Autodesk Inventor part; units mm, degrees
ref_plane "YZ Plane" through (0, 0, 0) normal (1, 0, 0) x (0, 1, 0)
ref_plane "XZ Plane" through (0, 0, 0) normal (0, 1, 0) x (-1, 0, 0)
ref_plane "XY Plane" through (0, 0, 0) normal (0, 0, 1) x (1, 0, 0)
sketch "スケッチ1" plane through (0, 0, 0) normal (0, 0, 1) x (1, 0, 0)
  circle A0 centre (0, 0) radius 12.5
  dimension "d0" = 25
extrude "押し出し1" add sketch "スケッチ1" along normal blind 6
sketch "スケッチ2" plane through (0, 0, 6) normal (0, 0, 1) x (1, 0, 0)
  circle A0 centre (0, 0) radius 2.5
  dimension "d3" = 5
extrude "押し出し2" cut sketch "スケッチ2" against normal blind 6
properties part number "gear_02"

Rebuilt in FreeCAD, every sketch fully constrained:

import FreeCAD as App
import Part
import Sketcher
from FreeCAD import Vector

doc = App.newDocument("Part")
body = doc.addObject("PartDesign::Body", "Body")

# Sketch on XY plane
sketch1 = body.newObject("Sketcher::SketchObject", "Sketch")
sketch1.AttachmentSupport = (doc.getObject("XY_Plane"), [""])
sketch1.MapMode = "FlatFace"
sketch1.addGeometry(Part.Circle(Vector(0, 0, 0), Vector(0, 0, 1), 12), False)
sketch1.addConstraint([
    Sketcher.Constraint("Coincident", 0, 3, -1, 1),
    Sketcher.Constraint("Diameter", 0, 25.0),
])
pad1 = body.newObject("PartDesign::Pad", "Pad")
pad1.Profile = sketch1
pad1.Length = 6

# Sketch on XY plane
sketch2 = body.newObject("Sketcher::SketchObject", "Sketch001")
sketch2.AttachmentSupport = (doc.getObject("XY_Plane"), [""])
sketch2.MapMode = "FlatFace"
sketch2.AttachmentOffset = App.Placement(Vector(0, 0, 6), App.Rotation())
sketch2.addGeometry(Part.Circle(Vector(0, 0, 0), Vector(0, 0, 1), 2.5), False)
sketch2.addConstraint([
    Sketcher.Constraint("Coincident", 0, 3, -1, 1),
    Sketcher.Constraint("Diameter", 0, 5.0),
])
pocket1 = body.newObject("PartDesign::Pocket", "Pocket")
pocket1.Profile = sketch2
pocket1.Length = 6

doc.recompute()
